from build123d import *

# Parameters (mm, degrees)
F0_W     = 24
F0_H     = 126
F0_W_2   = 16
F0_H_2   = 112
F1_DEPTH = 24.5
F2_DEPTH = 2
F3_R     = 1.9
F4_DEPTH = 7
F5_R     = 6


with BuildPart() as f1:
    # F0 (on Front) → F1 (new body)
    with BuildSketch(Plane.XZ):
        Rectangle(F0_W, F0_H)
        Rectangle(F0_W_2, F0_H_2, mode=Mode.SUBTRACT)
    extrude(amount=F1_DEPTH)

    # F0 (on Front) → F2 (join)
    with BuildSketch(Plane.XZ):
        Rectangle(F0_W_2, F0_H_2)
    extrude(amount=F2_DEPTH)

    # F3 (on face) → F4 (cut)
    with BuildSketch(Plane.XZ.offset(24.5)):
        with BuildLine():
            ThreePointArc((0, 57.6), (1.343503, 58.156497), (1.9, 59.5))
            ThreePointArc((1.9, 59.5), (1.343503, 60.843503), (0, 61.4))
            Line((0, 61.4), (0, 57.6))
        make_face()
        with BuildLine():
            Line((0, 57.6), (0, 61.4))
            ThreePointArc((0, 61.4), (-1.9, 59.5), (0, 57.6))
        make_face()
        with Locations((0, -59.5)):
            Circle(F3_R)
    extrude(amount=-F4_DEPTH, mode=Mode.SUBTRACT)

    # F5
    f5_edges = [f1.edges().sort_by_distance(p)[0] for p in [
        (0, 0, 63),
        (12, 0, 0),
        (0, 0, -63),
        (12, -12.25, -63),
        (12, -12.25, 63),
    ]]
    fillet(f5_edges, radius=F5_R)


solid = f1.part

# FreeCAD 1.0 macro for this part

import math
import FreeCAD as App
import Part
import Sketcher


def edges_at(feature, points):
    """Names of the edges that pass closest to the given points."""
    edges = feature.Shape.Edges
    near = lambda p: min(range(len(edges)), key=lambda i: edges[i].distToShape(Part.Vertex(*p))[0])
    return sorted({f"Edge{near(p) + 1}" for p in points})


def add_polygon(sketch, points):
    """Adds a closed chain of lines whose ends are joined by coincident constraints."""
    first, n = sketch.GeometryCount, len(points)
    for a, b in zip(points, points[1:] + points[:1]):
        sketch.addGeometry(Part.LineSegment(App.Vector(*a, 0), App.Vector(*b, 0)), False)
    for i in range(n):
        sketch.addConstraint(Sketcher.Constraint("Coincident", first + i, 2, first + (i + 1) % n, 1))

doc = App.newDocument("Part")
body = doc.addObject("PartDesign::Body", "Body")

sketch1 = doc.addObject("Sketcher::SketchObject", "Sketch")
body.addObject(sketch1)
sketch1.AttachmentSupport = (doc.XZ_Plane, [""])
sketch1.MapMode = "FlatFace"
add_polygon(sketch1, [(-12, 63), (-12, -63), (12, -63), (12, 63)])
add_polygon(sketch1, [(8, -56), (-8, -56), (-8, 56), (8, 56)])
sketch1.addConstraint(Sketcher.Constraint("Vertical", 0))
sketch1.addConstraint(Sketcher.Constraint("Horizontal", 1))
sketch1.addConstraint(Sketcher.Constraint("Vertical", 2))
sketch1.addConstraint(Sketcher.Constraint("Horizontal", 3))
sketch1.addConstraint(Sketcher.Constraint("Horizontal", 4))
sketch1.addConstraint(Sketcher.Constraint("Vertical", 5))
sketch1.addConstraint(Sketcher.Constraint("Horizontal", 6))
sketch1.addConstraint(Sketcher.Constraint("Vertical", 7))
sketch1.addConstraint(Sketcher.Constraint("Symmetric", 0, 2, 2, 2, -1, 1))
sketch1.addConstraint(Sketcher.Constraint("Symmetric", 4, 2, 6, 2, -1, 1))
sketch1.addConstraint(Sketcher.Constraint("DistanceX", 1, 1, 1, 2, 24.0))
sketch1.addConstraint(Sketcher.Constraint("DistanceX", 4, 2, 4, 1, 16.0))
sketch1.addConstraint(Sketcher.Constraint("DistanceY", 0, 2, 0, 1, 126.0))
sketch1.addConstraint(Sketcher.Constraint("DistanceY", 5, 1, 5, 2, 112.0))
pad1 = doc.addObject("PartDesign::Pad", "Pad")
body.addObject(pad1)
pad1.Profile = sketch1
pad1.Length = 24.5

sketch2 = doc.addObject("Sketcher::SketchObject", "Sketch001")
body.addObject(sketch2)
sketch2.AttachmentSupport = (doc.XZ_Plane, [""])
sketch2.MapMode = "FlatFace"
add_polygon(sketch2, [(-8, 56), (-8, -56), (8, -56), (8, 56)])
sketch2.addConstraint(Sketcher.Constraint("Vertical", 0))
sketch2.addConstraint(Sketcher.Constraint("Horizontal", 1))
sketch2.addConstraint(Sketcher.Constraint("Vertical", 2))
sketch2.addConstraint(Sketcher.Constraint("Horizontal", 3))
sketch2.addConstraint(Sketcher.Constraint("Symmetric", 0, 2, 2, 2, -1, 1))
sketch2.addConstraint(Sketcher.Constraint("DistanceX", 1, 1, 1, 2, 16.0))
sketch2.addConstraint(Sketcher.Constraint("DistanceY", 0, 2, 0, 1, 112.0))
pad2 = doc.addObject("PartDesign::Pad", "Pad001")
body.addObject(pad2)
pad2.Profile = sketch2
pad2.Length = 2

sketch3 = doc.addObject("Sketcher::SketchObject", "Sketch002")
body.addObject(sketch3)
sketch3.AttachmentSupport = (doc.XZ_Plane, [""])
sketch3.MapMode = "FlatFace"
sketch3.AttachmentOffset = App.Placement(App.Vector(0, 0, 24.5), App.Rotation())
sketch3.addGeometry(Part.ArcOfCircle(Part.Circle(App.Vector(0, 59.5, 0), App.Vector(0, 0, 1), 1.9), math.radians(-90.000012), math.radians(0.000012)), False)
sketch3.addGeometry(Part.ArcOfCircle(Part.Circle(App.Vector(0, 59.5, 0), App.Vector(0, 0, 1), 1.9), math.radians(-0.000012), math.radians(90.000012)), False)
sketch3.addGeometry(Part.ArcOfCircle(Part.Circle(App.Vector(0, 59.5, 0), App.Vector(0, 0, 1), 1.9), math.radians(90), math.radians(270)), False)
sketch3.addGeometry(Part.Circle(App.Vector(0, -59.5, 0), App.Vector(0, 0, 1), 1.9), False)
sketch3.addConstraint(Sketcher.Constraint("Tangent", 0, 2, 1, 1))
sketch3.addConstraint(Sketcher.Constraint("Tangent", 1, 2, 2, 1))
sketch3.addConstraint(Sketcher.Constraint("Tangent", 2, 2, 0, 1))
sketch3.addConstraint(Sketcher.Constraint("Equal", 2, 3))
sketch3.addConstraint(Sketcher.Constraint("Symmetric", 0, 3, 3, 3, -1, 1))
sketch3.addConstraint(Sketcher.Constraint("PointOnObject", 0, 3, -2))
sketch3.addConstraint(Sketcher.Constraint("PointOnObject", 1, 2, -2))
sketch3.addConstraint(Sketcher.Constraint("PointOnObject", 2, 2, -2))
sketch3.addConstraint(Sketcher.Constraint("Horizontal", 2, 3, 0, 2))
sketch3.addConstraint(Sketcher.Constraint("Diameter", 3, 3.8))
sketch3.addConstraint(Sketcher.Constraint("DistanceY", 3, 3, 0, 3, 119.0))
pocket1 = doc.addObject("PartDesign::Pocket", "Pocket")
body.addObject(pocket1)
pocket1.Profile = sketch3
pocket1.Length = 7
doc.recompute()

fillet = doc.addObject("PartDesign::Fillet", "Fillet")
body.addObject(fillet)
fillet.Base = (pocket1, edges_at(pocket1, [
    (0, 0, 63),
    (12, 0, 0),
    (0, 0, -63),
    (12, -12.25, -63),
    (12, -12.25, 63),
]))
fillet.Radius = 6

doc.recompute()
